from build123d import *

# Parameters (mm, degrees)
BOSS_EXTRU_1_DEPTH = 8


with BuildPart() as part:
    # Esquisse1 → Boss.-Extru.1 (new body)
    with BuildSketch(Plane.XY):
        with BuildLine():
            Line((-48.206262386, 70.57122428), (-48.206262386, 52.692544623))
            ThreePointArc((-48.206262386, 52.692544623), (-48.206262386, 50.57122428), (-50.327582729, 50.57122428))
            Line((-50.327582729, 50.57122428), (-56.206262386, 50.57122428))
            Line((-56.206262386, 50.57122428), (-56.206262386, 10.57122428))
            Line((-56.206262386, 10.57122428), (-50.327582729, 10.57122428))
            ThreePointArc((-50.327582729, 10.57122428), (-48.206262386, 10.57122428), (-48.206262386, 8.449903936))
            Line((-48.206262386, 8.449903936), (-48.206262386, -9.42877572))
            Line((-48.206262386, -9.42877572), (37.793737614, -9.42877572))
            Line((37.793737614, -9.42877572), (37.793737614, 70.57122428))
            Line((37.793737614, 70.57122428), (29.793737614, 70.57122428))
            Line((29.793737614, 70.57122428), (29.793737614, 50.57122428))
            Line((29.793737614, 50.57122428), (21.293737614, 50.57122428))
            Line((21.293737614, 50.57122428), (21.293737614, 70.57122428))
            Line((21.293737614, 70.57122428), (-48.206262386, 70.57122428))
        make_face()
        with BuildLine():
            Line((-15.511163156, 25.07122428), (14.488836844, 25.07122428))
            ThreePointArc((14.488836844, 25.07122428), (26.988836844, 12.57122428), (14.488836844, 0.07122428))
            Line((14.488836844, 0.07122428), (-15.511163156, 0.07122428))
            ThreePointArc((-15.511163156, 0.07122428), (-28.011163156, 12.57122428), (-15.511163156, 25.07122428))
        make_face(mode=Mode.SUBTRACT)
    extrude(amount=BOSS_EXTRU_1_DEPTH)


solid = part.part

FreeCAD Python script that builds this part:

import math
import FreeCAD as App
import Part
import Sketcher

doc = App.newDocument("Part")
body = doc.addObject("PartDesign::Body", "Body")

sketch1 = body.newObject("Sketcher::SketchObject", "Sketch")
sketch1.AttachmentSupport = (doc.getObject("XY_Plane"), [""])
sketch1.MapMode = "FlatFace"
sketch1.addGeometry([
    Part.LineSegment(App.Vector(-48.2, 70.6, 0), App.Vector(-48.2, 52.7, 0)),
    Part.ArcOfCircle(Part.Circle(App.Vector(-49.3, 51.6, 0), App.Vector(0, 0, 1), 1.5), math.radians(-135), math.radians(45)),
    Part.LineSegment(App.Vector(-50.3, 50.6, 0), App.Vector(-56.2, 50.6, 0)),
    Part.LineSegment(App.Vector(-56.2, 50.6, 0), App.Vector(-56.2, 10.6, 0)),
    Part.LineSegment(App.Vector(-56.2, 10.6, 0), App.Vector(-50.3, 10.6, 0)),
    Part.ArcOfCircle(Part.Circle(App.Vector(-49.3, 9.5, 0), App.Vector(0, 0, 1), 1.5), math.radians(-45), math.radians(135)),
    Part.LineSegment(App.Vector(-48.2, 8.4, 0), App.Vector(-48.2, -9.4, 0)),
    Part.LineSegment(App.Vector(-48.2, -9.4, 0), App.Vector(37.8, -9.4, 0)),
    Part.LineSegment(App.Vector(37.8, -9.4, 0), App.Vector(37.8, 70.6, 0)),
    Part.LineSegment(App.Vector(37.8, 70.6, 0), App.Vector(29.8, 70.6, 0)),
    Part.LineSegment(App.Vector(29.8, 70.6, 0), App.Vector(29.8, 50.6, 0)),
    Part.LineSegment(App.Vector(29.8, 50.6, 0), App.Vector(21.3, 50.6, 0)),
    Part.LineSegment(App.Vector(21.3, 50.6, 0), App.Vector(21.3, 70.6, 0)),
    Part.LineSegment(App.Vector(21.3, 70.6, 0), App.Vector(-48.2, 70.6, 0)),
    Part.ArcOfCircle(Part.Circle(App.Vector(-15.5, 12.6, 0), App.Vector(0, 0, 1), 12.5), math.radians(90), math.radians(270)),
    Part.LineSegment(App.Vector(-15.5, 25.1, 0), App.Vector(14.5, 25.1, 0)),
    Part.ArcOfCircle(Part.Circle(App.Vector(14.5, 12.6, 0), App.Vector(0, 0, 1), 12.5), math.radians(-90), math.radians(90)),
    Part.LineSegment(App.Vector(14.5, 0.1, 0), App.Vector(-15.5, 0.1, 0)),
], False)
sketch1.addConstraint([
    Sketcher.Constraint("Coincident", 0, 2, 1, 2),
    Sketcher.Constraint("Coincident", 1, 1, 2, 1),
    Sketcher.Constraint("Coincident", 2, 2, 3, 1),
    Sketcher.Constraint("Coincident", 3, 2, 4, 1),
    Sketcher.Constraint("Coincident", 4, 2, 5, 2),
    Sketcher.Constraint("Coincident", 5, 1, 6, 1),
    Sketcher.Constraint("Coincident", 6, 2, 7, 1),
    Sketcher.Constraint("Coincident", 7, 2, 8, 1),
    Sketcher.Constraint("Coincident", 8, 2, 9, 1),
    Sketcher.Constraint("Coincident", 9, 2, 10, 1),
    Sketcher.Constraint("Coincident", 10, 2, 11, 1),
    Sketcher.Constraint("Coincident", 11, 2, 12, 1),
    Sketcher.Constraint("Coincident", 12, 2, 13, 1),
    Sketcher.Constraint("Coincident", 13, 2, 0, 1),
    Sketcher.Constraint("Tangent", 14, 1, 15, 1),
    Sketcher.Constraint("Tangent", 15, 2, 16, 2),
    Sketcher.Constraint("Tangent", 16, 1, 17, 1),
    Sketcher.Constraint("Tangent", 17, 2, 14, 2),
    Sketcher.Constraint("Vertical", 0),
    Sketcher.Constraint("Horizontal", 2),
    Sketcher.Constraint("Vertical", 3),
    Sketcher.Constraint("Horizontal", 4),
    Sketcher.Constraint("Vertical", 6),
    Sketcher.Constraint("Horizontal", 7),
    Sketcher.Constraint("Vertical", 8),
    Sketcher.Constraint("Horizontal", 9),
    Sketcher.Constraint("Vertical", 10),
    Sketcher.Constraint("Horizontal", 11),
    Sketcher.Constraint("Vertical", 12),
    Sketcher.Constraint("Horizontal", 13),
    Sketcher.Constraint("Horizontal", 15),
    Sketcher.Constraint("Horizontal", 17),
    Sketcher.Constraint("Equal", 1, 5),
    Sketcher.Constraint("Horizontal", 2, 2, 10, 2),
    Sketcher.Constraint("Horizontal", 9, 2, 12, 2),
    Sketcher.Constraint("Vertical", 1, 3, 5, 3),
    Sketcher.Constraint("Vertical", 1, 1, 4, 2),
    Sketcher.Constraint("Vertical", 0, 2, 5, 1),
    Sketcher.Constraint("Equal", 0, 6),
    Sketcher.Constraint("Radius", 1, 1.5),
    Sketcher.Constraint("Radius", 14, 12.5),
    Sketcher.Constraint("DistanceX", 7, 1, 7, 2, 86.0),
    Sketcher.Constraint("DistanceX", 9, 2, 9, 1, 8.0),
    Sketcher.Constraint("DistanceX", 15, 1, 15, 2, 30.0),
    Sketcher.Constraint("DistanceY", 3, 2, 3, 1, 40.0),
    Sketcher.Constraint("DistanceY", 8, 1, 8, 2, 80.0),
    Sketcher.Constraint("DistanceX", 11, 2, 11, 1, 8.5),
    Sketcher.Constraint("DistanceY", 14, 3, 1, 1, 38.0),
    Sketcher.Constraint("DistanceX", 2, 2, 0, 2, 8.0),
    Sketcher.Constraint("DistanceX", 2, 2, 2, 1, 5.87868),
    Sketcher.Constraint("DistanceX", 0, 2, 14, 3, 32.695099),
    Sketcher.Constraint("DistanceY", 5, 3, 1, 3, 42.12132),
    Sketcher.Constraint("DistanceX", 1, 3, -1, 1, 49.266923),
    Sketcher.Constraint("DistanceY", -1, 1, 1, 3, 51.631884),
])
pad1 = body.newObject("PartDesign::Pad", "Pad")
pad1.Profile = sketch1
pad1.Length = 8

doc.recompute()
